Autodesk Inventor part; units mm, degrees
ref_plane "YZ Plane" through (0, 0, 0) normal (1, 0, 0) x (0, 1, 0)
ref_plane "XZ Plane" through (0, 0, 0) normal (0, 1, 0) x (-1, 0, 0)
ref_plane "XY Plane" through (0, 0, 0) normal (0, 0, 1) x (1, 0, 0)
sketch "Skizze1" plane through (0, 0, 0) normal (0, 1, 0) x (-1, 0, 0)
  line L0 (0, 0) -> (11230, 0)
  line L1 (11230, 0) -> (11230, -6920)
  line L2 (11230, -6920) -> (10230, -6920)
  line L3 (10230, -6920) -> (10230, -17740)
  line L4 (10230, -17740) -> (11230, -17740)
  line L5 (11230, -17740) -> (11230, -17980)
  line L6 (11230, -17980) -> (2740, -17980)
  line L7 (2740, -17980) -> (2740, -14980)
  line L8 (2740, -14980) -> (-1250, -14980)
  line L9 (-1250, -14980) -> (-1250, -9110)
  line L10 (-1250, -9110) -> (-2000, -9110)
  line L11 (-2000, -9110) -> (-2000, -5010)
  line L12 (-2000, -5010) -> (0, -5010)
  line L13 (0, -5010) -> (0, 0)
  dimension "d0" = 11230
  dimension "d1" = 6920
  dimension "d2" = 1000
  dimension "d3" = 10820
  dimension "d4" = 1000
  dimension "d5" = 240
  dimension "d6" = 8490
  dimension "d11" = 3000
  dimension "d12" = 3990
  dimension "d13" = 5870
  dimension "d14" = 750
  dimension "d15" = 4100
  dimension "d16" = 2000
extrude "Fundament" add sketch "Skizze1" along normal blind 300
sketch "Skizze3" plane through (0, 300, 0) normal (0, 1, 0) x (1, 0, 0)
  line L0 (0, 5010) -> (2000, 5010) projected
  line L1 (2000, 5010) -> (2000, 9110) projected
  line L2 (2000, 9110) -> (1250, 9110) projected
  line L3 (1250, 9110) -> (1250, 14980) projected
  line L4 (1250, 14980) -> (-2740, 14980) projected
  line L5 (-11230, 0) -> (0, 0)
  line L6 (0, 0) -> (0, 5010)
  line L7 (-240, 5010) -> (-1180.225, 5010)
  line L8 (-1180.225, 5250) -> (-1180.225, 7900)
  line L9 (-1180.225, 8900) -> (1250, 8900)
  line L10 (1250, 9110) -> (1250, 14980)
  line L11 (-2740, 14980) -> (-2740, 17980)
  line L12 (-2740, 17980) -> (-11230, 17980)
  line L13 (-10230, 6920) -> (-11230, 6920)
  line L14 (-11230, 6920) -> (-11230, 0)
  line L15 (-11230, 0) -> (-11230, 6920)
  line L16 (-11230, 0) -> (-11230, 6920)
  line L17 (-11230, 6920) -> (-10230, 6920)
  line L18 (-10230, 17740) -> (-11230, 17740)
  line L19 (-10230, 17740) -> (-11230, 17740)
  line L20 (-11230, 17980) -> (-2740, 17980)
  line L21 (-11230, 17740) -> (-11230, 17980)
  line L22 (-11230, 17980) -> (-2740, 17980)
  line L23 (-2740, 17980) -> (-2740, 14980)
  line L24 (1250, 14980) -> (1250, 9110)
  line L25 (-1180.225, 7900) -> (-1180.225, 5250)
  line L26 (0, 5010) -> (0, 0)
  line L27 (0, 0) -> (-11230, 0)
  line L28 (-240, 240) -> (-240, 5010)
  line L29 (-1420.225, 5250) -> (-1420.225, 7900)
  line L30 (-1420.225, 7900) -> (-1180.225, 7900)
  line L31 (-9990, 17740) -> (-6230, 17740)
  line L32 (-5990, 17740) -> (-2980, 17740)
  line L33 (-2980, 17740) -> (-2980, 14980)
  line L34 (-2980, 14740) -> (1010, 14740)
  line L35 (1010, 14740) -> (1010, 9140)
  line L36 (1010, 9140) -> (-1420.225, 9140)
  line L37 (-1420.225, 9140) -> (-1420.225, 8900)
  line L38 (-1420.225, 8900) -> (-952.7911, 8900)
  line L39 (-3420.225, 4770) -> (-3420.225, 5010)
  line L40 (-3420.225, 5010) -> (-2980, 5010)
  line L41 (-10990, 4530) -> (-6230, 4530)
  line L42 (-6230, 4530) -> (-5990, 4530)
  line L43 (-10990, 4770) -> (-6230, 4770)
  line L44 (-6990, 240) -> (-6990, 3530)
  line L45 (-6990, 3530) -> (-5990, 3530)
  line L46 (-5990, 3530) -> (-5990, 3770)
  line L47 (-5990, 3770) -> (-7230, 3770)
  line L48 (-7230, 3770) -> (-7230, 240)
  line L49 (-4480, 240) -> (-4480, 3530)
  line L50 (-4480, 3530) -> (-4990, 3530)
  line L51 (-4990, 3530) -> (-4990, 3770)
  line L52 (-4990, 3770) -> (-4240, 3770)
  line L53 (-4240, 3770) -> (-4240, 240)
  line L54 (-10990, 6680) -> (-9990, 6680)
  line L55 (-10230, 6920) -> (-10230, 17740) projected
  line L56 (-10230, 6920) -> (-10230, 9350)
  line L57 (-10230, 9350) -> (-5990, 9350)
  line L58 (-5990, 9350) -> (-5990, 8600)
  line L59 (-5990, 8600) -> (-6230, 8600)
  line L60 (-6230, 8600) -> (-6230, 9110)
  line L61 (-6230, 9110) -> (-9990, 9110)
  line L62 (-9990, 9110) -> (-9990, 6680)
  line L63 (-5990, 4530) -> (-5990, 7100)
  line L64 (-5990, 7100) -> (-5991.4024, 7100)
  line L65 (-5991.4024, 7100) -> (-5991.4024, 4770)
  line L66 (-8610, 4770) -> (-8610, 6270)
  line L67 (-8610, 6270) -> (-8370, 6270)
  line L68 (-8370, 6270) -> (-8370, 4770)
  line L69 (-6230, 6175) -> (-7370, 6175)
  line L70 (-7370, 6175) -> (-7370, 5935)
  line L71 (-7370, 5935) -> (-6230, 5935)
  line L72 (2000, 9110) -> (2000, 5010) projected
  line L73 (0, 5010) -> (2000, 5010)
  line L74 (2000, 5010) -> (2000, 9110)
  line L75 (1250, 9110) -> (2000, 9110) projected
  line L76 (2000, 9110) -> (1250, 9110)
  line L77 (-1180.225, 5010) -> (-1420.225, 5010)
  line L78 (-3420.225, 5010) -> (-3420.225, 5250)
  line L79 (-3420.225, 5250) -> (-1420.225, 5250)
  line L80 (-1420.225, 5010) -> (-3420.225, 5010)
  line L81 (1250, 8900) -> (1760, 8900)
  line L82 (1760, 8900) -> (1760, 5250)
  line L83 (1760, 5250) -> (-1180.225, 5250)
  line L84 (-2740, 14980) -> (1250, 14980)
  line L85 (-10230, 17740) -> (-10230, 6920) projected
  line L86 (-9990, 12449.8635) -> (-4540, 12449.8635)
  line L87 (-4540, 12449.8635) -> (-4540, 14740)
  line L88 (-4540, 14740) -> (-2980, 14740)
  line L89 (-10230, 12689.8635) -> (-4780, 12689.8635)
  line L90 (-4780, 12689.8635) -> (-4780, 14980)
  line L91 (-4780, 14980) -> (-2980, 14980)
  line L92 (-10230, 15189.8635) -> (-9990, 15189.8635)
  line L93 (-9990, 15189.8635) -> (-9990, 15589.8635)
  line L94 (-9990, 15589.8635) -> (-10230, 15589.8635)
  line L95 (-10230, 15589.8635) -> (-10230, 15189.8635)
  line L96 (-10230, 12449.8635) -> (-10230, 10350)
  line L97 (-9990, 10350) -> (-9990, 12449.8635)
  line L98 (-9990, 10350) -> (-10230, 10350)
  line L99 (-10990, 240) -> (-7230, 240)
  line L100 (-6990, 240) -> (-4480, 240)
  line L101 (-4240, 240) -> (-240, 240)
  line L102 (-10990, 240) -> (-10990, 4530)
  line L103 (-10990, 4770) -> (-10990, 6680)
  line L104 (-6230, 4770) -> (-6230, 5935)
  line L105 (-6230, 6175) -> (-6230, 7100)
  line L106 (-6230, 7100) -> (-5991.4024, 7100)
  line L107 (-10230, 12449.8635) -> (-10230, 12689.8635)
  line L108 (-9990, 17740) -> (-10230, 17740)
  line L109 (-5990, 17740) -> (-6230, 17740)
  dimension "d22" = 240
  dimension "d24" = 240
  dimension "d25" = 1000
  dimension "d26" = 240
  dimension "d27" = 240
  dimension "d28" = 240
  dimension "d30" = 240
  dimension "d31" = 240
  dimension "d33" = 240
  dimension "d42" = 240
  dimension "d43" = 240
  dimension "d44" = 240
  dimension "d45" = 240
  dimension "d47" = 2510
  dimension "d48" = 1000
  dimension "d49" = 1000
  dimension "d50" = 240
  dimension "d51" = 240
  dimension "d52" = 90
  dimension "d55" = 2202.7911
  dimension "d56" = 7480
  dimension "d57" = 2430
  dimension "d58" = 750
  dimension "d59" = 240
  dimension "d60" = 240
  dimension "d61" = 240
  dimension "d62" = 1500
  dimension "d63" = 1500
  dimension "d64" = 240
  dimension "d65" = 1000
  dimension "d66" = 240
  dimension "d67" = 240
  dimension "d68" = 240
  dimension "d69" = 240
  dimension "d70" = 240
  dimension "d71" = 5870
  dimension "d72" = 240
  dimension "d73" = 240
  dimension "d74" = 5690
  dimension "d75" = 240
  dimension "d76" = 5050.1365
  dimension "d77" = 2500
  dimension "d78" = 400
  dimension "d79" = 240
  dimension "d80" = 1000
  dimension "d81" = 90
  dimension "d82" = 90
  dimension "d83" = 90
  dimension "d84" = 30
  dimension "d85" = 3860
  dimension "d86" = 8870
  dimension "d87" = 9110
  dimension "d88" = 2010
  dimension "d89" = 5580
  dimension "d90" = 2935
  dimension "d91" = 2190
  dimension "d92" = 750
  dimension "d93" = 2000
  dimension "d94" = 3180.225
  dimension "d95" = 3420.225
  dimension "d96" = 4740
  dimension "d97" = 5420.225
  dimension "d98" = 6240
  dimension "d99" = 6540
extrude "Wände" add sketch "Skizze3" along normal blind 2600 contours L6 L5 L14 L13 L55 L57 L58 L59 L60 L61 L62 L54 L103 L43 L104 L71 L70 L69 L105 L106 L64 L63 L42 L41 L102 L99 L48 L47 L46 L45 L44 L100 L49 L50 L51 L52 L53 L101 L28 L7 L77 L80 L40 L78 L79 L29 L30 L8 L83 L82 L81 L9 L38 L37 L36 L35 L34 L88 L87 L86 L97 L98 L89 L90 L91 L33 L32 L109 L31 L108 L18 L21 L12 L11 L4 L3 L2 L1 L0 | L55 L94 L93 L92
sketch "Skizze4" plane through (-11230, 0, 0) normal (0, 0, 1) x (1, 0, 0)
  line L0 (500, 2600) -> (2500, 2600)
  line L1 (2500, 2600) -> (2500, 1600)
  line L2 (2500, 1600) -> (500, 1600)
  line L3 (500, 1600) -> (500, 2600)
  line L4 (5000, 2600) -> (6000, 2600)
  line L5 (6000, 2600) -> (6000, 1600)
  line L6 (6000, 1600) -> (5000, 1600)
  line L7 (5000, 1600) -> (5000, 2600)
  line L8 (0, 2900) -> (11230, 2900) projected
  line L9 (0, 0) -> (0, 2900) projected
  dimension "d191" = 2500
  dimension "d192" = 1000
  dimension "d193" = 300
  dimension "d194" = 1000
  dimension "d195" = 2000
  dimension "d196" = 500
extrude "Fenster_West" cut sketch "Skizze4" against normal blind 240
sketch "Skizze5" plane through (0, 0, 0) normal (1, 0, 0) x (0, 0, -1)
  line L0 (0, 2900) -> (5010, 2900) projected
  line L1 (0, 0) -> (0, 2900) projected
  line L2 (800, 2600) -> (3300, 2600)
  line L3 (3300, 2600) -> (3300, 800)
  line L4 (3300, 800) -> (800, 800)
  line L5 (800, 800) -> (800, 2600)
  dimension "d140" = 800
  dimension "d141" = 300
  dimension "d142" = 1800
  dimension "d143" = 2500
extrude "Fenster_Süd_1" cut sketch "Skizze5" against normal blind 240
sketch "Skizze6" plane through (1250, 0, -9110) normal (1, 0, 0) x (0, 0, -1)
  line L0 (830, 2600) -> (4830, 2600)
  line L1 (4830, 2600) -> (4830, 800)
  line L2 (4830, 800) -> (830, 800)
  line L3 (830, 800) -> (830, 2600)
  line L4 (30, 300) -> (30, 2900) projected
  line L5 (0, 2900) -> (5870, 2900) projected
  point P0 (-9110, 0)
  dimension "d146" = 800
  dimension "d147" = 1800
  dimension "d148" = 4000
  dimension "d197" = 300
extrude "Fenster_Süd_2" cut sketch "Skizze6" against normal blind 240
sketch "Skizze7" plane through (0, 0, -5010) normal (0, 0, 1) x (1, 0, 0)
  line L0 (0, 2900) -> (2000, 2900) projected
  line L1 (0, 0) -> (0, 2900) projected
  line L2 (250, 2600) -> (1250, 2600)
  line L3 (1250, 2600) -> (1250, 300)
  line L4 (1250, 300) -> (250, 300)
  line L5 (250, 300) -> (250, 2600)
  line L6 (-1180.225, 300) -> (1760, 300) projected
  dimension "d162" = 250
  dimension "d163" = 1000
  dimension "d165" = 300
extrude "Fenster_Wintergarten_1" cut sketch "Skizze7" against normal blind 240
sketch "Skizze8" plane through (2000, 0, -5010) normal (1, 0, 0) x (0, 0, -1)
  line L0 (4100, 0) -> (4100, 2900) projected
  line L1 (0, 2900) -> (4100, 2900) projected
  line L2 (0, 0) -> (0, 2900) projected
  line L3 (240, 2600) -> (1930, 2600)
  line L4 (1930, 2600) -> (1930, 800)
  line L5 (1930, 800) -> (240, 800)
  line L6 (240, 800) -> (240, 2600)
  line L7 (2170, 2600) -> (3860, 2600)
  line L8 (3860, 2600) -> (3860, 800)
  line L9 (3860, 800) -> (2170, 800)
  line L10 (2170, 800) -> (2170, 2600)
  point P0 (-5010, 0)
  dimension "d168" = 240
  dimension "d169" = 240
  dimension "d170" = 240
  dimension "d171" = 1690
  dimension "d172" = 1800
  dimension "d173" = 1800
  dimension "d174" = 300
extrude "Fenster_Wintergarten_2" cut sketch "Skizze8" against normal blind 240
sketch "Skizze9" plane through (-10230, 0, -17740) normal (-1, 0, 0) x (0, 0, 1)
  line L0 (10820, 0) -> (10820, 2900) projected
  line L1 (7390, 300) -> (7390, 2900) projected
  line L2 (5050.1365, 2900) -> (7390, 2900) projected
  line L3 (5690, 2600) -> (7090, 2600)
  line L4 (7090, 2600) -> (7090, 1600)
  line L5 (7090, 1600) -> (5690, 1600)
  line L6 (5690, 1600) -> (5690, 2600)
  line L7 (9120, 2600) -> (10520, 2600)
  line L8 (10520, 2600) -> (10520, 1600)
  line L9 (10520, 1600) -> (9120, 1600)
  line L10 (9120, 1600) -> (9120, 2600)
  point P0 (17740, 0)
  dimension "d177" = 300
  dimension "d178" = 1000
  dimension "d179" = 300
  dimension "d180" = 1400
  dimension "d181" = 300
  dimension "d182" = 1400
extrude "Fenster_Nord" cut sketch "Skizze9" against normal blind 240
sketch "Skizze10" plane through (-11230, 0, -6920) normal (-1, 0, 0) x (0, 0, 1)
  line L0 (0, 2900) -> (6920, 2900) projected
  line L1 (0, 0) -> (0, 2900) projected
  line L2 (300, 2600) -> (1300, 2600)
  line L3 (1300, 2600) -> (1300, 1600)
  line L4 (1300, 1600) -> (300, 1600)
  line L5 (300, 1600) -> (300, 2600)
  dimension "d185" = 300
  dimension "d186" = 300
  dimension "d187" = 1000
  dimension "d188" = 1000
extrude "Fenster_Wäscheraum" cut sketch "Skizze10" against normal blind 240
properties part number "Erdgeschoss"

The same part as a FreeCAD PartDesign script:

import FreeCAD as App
import Part
import Sketcher
Q = App.Units.Quantity


def add_polygon(sketch, points):
    """Adds a closed chain of lines whose ends are joined by coincident constraints."""
    first, n = sketch.GeometryCount, len(points)
    for a, b in zip(points, points[1:] + points[:1]):
        sketch.addGeometry(Part.LineSegment(App.Vector(*a, 0), App.Vector(*b, 0)), False)
    for i in range(n):
        sketch.addConstraint(Sketcher.Constraint("Coincident", first + i, 2, first + (i + 1) % n, 1))

doc = App.newDocument("Part")
body = doc.addObject("PartDesign::Body", "Body")

sketch1 = body.newObject("Sketcher::SketchObject", "Sketch")
sketch1.AttachmentSupport = (doc.getObject("XZ_Plane"), [""])
sketch1.MapMode = "FlatFace"
add_polygon(sketch1, [(-11230, 0), (0, 0), (0, -5010), (2000, -5010), (2000, -9110), (1250, -9110), (1250, -14980), (-2740, -14980), (-2740, -17980), (-11230, -17980), (-11230, -17740), (-10230, -17740), (-10230, -6920), (-11230, -6920)])
sketch1.addConstraint(Sketcher.Constraint("Horizontal", 0))
sketch1.addConstraint(Sketcher.Constraint("Vertical", 1))
sketch1.addConstraint(Sketcher.Constraint("Horizontal", 2))
sketch1.addConstraint(Sketcher.Constraint("Vertical", 3))
sketch1.addConstraint(Sketcher.Constraint("Horizontal", 4))
sketch1.addConstraint(Sketcher.Constraint("Vertical", 5))
sketch1.addConstraint(Sketcher.Constraint("Horizontal", 6))
sketch1.addConstraint(Sketcher.Constraint("Vertical", 7))
sketch1.addConstraint(Sketcher.Constraint("Horizontal", 8))
sketch1.addConstraint(Sketcher.Constraint("Vertical", 9))
sketch1.addConstraint(Sketcher.Constraint("Horizontal", 10))
sketch1.addConstraint(Sketcher.Constraint("Vertical", 11))
sketch1.addConstraint(Sketcher.Constraint("Horizontal", 12))
sketch1.addConstraint(Sketcher.Constraint("Vertical", 13))
sketch1.addConstraint(Sketcher.Constraint("Coincident", 0, 2, -1, 1))
sketch1.addConstraint(Sketcher.Constraint("Vertical", 9, 2, 12, 2))
sketch1.addConstraint(Sketcher.Constraint("DistanceX", 0, 1, 0, 2, Q("11230 mm")))
sketch1.addConstraint(Sketcher.Constraint("DistanceX", 2, 1, 2, 2, Q("2000 mm")))
sketch1.addConstraint(Sketcher.Constraint("DistanceX", 4, 2, 4, 1, Q("750 mm")))
sketch1.addConstraint(Sketcher.Constraint("DistanceX", 6, 2, 6, 1, Q("3990 mm")))
sketch1.addConstraint(Sketcher.Constraint("DistanceX", 10, 1, 10, 2, Q("1000 mm")))
sketch1.addConstraint(Sketcher.Constraint("DistanceY", 3, 2, 3, 1, Q("4100 mm")))
sketch1.addConstraint(Sketcher.Constraint("DistanceY", 5, 2, 5, 1, Q("5870 mm")))
sketch1.addConstraint(Sketcher.Constraint("DistanceY", 7, 2, 7, 1, Q("3000 mm")))
sketch1.addConstraint(Sketcher.Constraint("DistanceY", 9, 1, 9, 2, Q("240 mm")))
sketch1.addConstraint(Sketcher.Constraint("DistanceY", 11, 1, 11, 2, Q("10820 mm")))
sketch1.addConstraint(Sketcher.Constraint("DistanceY", 13, 1, 13, 2, Q("6920 mm")))
pad1 = body.newObject("PartDesign::Pad", "Pad")
pad1.Profile = sketch1
pad1.Length = 300
pad1.Reversed = True

sketch2 = body.newObject("Sketcher::SketchObject", "Sketch001")
sketch2.AttachmentSupport = (doc.getObject("XZ_Plane"), [""])
sketch2.MapMode = "FlatFace"
sketch2.AttachmentOffset = App.Placement(App.Vector(0, 0, -300), App.Rotation())
add_polygon(sketch2, [(0, 0), (0, -5010), (2000, -5010), (2000, -9110), (1250, -9110), (1250, -14980), (-2740, -14980), (-2740, -17980), (-11230, -17980), (-11230, -17740), (-2980, -17740), (-2980, -14980), (-4780, -14980), (-4780, -12690), (-10230, -12690), (-10230, -10350), (-9990, -10350), (-9990, -12450), (-4540, -12450), (-4540, -14740), (1010, -14740), (1010, -9140), (-1420, -9140), (-1420, -8900), (1760, -8900), (1760, -5250), (-1180, -5250), (-1180, -7900), (-1420, -7900), (-1420, -5250), (-3420, -5250), (-3420, -5010), (-240, -5010), (-240, -240), (-4240, -240), (-4240, -3770), (-4990, -3770), (-4990, -3530), (-4480, -3530), (-4480, -240), (-6990, -240), (-6990, -3530), (-5990, -3530), (-5990, -3770), (-7230, -3770), (-7230, -240), (-10990, -240), (-10990, -4530), (-5990, -4530), (-5990, -7100), (-6230, -7100), (-6230, -6175), (-7370, -6175), (-7370, -5935), (-6230, -5935), (-6230, -4770), (-10990, -4770), (-10990, -6680), (-9990, -6680), (-9990, -9110), (-6230, -9110), (-6230, -8600), (-5990, -8600), (-5990, -9350), (-10230, -9350), (-10230, -6920), (-11230, -6920), (-11230, 0)])
add_polygon(sketch2, [(-10230, -15590), (-10230, -15190), (-9990, -15190), (-9990, -15590)])
sketch2.addConstraint(Sketcher.Constraint("Vertical", 0))
sketch2.addConstraint(Sketcher.Constraint("Horizontal", 1))
sketch2.addConstraint(Sketcher.Constraint("Vertical", 2))
sketch2.addConstraint(Sketcher.Constraint("Horizontal", 3))
sketch2.addConstraint(Sketcher.Constraint("Vertical", 4))
sketch2.addConstraint(Sketcher.Constraint("Horizontal", 5))
sketch2.addConstraint(Sketcher.Constraint("Vertical", 6))
sketch2.addConstraint(Sketcher.Constraint("Horizontal", 7))
sketch2.addConstraint(Sketcher.Constraint("Vertical", 8))
sketch2.addConstraint(Sketcher.Constraint("Horizontal", 9))
sketch2.addConstraint(Sketcher.Constraint("Vertical", 10))
sketch2.addConstraint(Sketcher.Constraint("Horizontal", 11))
sketch2.addConstraint(Sketcher.Constraint("Vertical", 12))
sketch2.addConstraint(Sketcher.Constraint("Horizontal", 13))
sketch2.addConstraint(Sketcher.Constraint("Vertical", 14))
sketch2.addConstraint(Sketcher.Constraint("Horizontal", 15))
sketch2.addConstraint(Sketcher.Constraint("Vertical", 16))
sketch2.addConstraint(Sketcher.Constraint("Horizontal", 17))
sketch2.addConstraint(Sketcher.Constraint("Vertical", 18))
sketch2.addConstraint(Sketcher.Constraint("Horizontal", 19))
sketch2.addConstraint(Sketcher.Constraint("Vertical", 20))
sketch2.addConstraint(Sketcher.Constraint("Horizontal", 21))
sketch2.addConstraint(Sketcher.Constraint("Vertical", 22))
sketch2.addConstraint(Sketcher.Constraint("Horizontal", 23))
sketch2.addConstraint(Sketcher.Constraint("Vertical", 24))
sketch2.addConstraint(Sketcher.Constraint("Horizontal", 25))
sketch2.addConstraint(Sketcher.Constraint("Vertical", 26))
sketch2.addConstraint(Sketcher.Constraint("Horizontal", 27))
sketch2.addConstraint(Sketcher.Constraint("Vertical", 28))
sketch2.addConstraint(Sketcher.Constraint("Horizontal", 29))
sketch2.addConstraint(Sketcher.Constraint("Vertical", 30))
sketch2.addConstraint(Sketcher.Constraint("Horizontal", 31))
sketch2.addConstraint(Sketcher.Constraint("Vertical", 32))
sketch2.addConstraint(Sketcher.Constraint("Horizontal", 33))
sketch2.addConstraint(Sketcher.Constraint("Vertical", 34))
sketch2.addConstraint(Sketcher.Constraint("Horizontal", 35))
sketch2.addConstraint(Sketcher.Constraint("Vertical", 36))
sketch2.addConstraint(Sketcher.Constraint("Horizontal", 37))
sketch2.addConstraint(Sketcher.Constraint("Vertical", 38))
sketch2.addConstraint(Sketcher.Constraint("Horizontal", 39))
sketch2.addConstraint(Sketcher.Constraint("Vertical", 40))
sketch2.addConstraint(Sketcher.Constraint("Horizontal", 41))
sketch2.addConstraint(Sketcher.Constraint("Vertical", 42))
sketch2.addConstraint(Sketcher.Constraint("Horizontal", 43))
sketch2.addConstraint(Sketcher.Constraint("Vertical", 44))
sketch2.addConstraint(Sketcher.Constraint("Horizontal", 45))
sketch2.addConstraint(Sketcher.Constraint("Vertical", 46))
sketch2.addConstraint(Sketcher.Constraint("Horizontal", 47))
sketch2.addConstraint(Sketcher.Constraint("Vertical", 48))
sketch2.addConstraint(Sketcher.Constraint("Horizontal", 49))
sketch2.addConstraint(Sketcher.Constraint("Vertical", 50))
sketch2.addConstraint(Sketcher.Constraint("Horizontal", 51))
sketch2.addConstraint(Sketcher.Constraint("Vertical", 52))
sketch2.addConstraint(Sketcher.Constraint("Horizontal", 53))
sketch2.addConstraint(Sketcher.Constraint("Vertical", 54))
sketch2.addConstraint(Sketcher.Constraint("Horizontal", 55))
sketch2.addConstraint(Sketcher.Constraint("Vertical", 56))
sketch2.addConstraint(Sketcher.Constraint("Horizontal", 57))
sketch2.addConstraint(Sketcher.Constraint("Vertical", 58))
sketch2.addConstraint(Sketcher.Constraint("Horizontal", 59))
sketch2.addConstraint(Sketcher.Constraint("Vertical", 60))
sketch2.addConstraint(Sketcher.Constraint("Horizontal", 61))
sketch2.addConstraint(Sketcher.Constraint("Vertical", 62))
sketch2.addConstraint(Sketcher.Constraint("Horizontal", 63))
sketch2.addConstraint(Sketcher.Constraint("Vertical", 64))
sketch2.addConstraint(Sketcher.Constraint("Horizontal", 65))
sketch2.addConstraint(Sketcher.Constraint("Vertical", 66))
sketch2.addConstraint(Sketcher.Constraint("Horizontal", 67))
sketch2.addConstraint(Sketcher.Constraint("Vertical", 68))
sketch2.addConstraint(Sketcher.Constraint("Horizontal", 69))
sketch2.addConstraint(Sketcher.Constraint("Vertical", 70))
sketch2.addConstraint(Sketcher.Constraint("Horizontal", 71))
sketch2.addConstraint(Sketcher.Constraint("Coincident", 67, 2, -1, 1))
sketch2.addConstraint(Sketcher.Constraint("Horizontal", 5, 2, 10, 2))
sketch2.addConstraint(Sketcher.Constraint("Horizontal", 25, 2, 28, 2))
sketch2.addConstraint(Sketcher.Constraint("Horizontal", 1, 2, 30, 2))
sketch2.addConstraint(Sketcher.Constraint("Horizontal", 33, 2, 38, 2))
sketch2.addConstraint(Sketcher.Constraint("Horizontal", 37, 2, 40, 2))
sketch2.addConstraint(Sketcher.Constraint("Horizontal", 35, 2, 42, 2))
sketch2.addConstraint(Sketcher.Constraint("Horizontal", 39, 2, 44, 2))
sketch2.addConstraint(Sketcher.Constraint("Horizontal", 3, 2, 58, 2))
sketch2.addConstraint(Sketcher.Constraint("Vertical", 22, 2, 27, 2))
sketch2.addConstraint(Sketcher.Constraint("Vertical", 42, 2, 47, 2))
sketch2.addConstraint(Sketcher.Constraint("Vertical", 50, 2, 53, 2))
sketch2.addConstraint(Sketcher.Constraint("Vertical", 46, 2, 55, 2))
sketch2.addConstraint(Sketcher.Constraint("Vertical", 16, 2, 57, 2))
sketch2.addConstraint(Sketcher.Constraint("Vertical", 54, 2, 59, 2))
sketch2.addConstraint(Sketcher.Constraint("Vertical", 48, 2, 61, 2))
sketch2.addConstraint(Sketcher.Constraint("Vertical", 14, 2, 63, 2))
sketch2.addConstraint(Sketcher.Constraint("Vertical", 8, 2, 65, 2))
sketch2.addConstraint(Sketcher.Constraint("Vertical", 64, 2, 68, 2))
sketch2.addConstraint(Sketcher.Constraint("Vertical", 58, 2, 69, 2))
sketch2.addConstraint(Sketcher.Constraint("Equal", 13, 17))
sketch2.addConstraint(Sketcher.Constraint("Equal", 15, 27))
sketch2.addConstraint(Sketcher.Constraint("Equal", 1, 29))
sketch2.addConstraint(Sketcher.Constraint("Equal", 23, 31))
sketch2.addConstraint(Sketcher.Constraint("Equal", 3, 35))
sketch2.addConstraint(Sketcher.Constraint("Equal", 27, 49))
sketch2.addConstraint(Sketcher.Constraint("Equal", 41, 57))
sketch2.addConstraint(Sketcher.Constraint("Equal", 45, 59))
sketch2.addConstraint(Sketcher.Constraint("Equal", 57, 65))
sketch2.addConstraint(Sketcher.Constraint("Equal", 71, 8))
sketch2.addConstraint(Sketcher.Constraint("Equal", 12, 18))
sketch2.addConstraint(Sketcher.Constraint("Equal", 8, 22))
sketch2.addConstraint(Sketcher.Constraint("Equal", 22, 30))
sketch2.addConstraint(Sketcher.Constraint("Equal", 30, 36))
sketch2.addConstraint(Sketcher.Constraint("Equal", 42, 52))
sketch2.addConstraint(Sketcher.Constraint("Equal", 37, 60))
sketch2.addConstraint(Sketcher.Constraint("Equal", 35, 62))
sketch2.addConstraint(Sketcher.Constraint("Equal", 58, 64))
sketch2.addConstraint(Sketcher.Constraint("DistanceX", 1, 1, 1, 2, Q("2000 mm")))
sketch2.addConstraint(Sketcher.Constraint("DistanceX", 3, 2, 3, 1, Q("750 mm")))
sketch2.addConstraint(Sketcher.Constraint("DistanceX", 15, 1, 15, 2, Q("240 mm")))
sketch2.addConstraint(Sketcher.Constraint("DistanceX", 39, 2, 39, 1, Q("2510 mm")))
sketch2.addConstraint(Sketcher.Constraint("DistanceX", 41, 1, 41, 2, Q("1000 mm")))
sketch2.addConstraint(Sketcher.Constraint("DistanceY", 4, 2, 4, 1, Q("5870 mm")))
sketch2.addConstraint(Sketcher.Constraint("DistanceY", 58, 2, 58, 1, Q("2430 mm")))
sketch2.addConstraint(Sketcher.Constraint("DistanceY", 68, 1, 68, 2, Q("400 mm")))
sketch2.addConstraint(Sketcher.Constraint("DistanceY", 2, 2, -1, 1, Q("9110 mm")))
sketch2.addConstraint(Sketcher.Constraint("DistanceX", 31, 2, -1, 1, Q("240 mm")))
sketch2.addConstraint(Sketcher.Constraint("DistanceY", 32, 2, -1, 1, Q("240 mm")))
sketch2.addConstraint(Sketcher.Constraint("DistanceX", 5, 2, 5, 1, Q("3990 mm")))
sketch2.addConstraint(Sketcher.Constraint("DistanceX", 7, 2, 7, 1, Q("8490 mm")))
sketch2.addConstraint(Sketcher.Constraint("DistanceX", 9, 1, 9, 2, Q("8250 mm")))
sketch2.addConstraint(Sketcher.Constraint("DistanceX", 11, 2, 11, 1, Q("1800 mm")))
sketch2.addConstraint(Sketcher.Constraint("DistanceX", 19, 1, 19, 2, Q("5550 mm")))
sketch2.addConstraint(Sketcher.Constraint("DistanceX", 23, 1, 23, 2, Q("3180.225 mm")))
sketch2.addConstraint(Sketcher.Constraint("DistanceX", 33, 2, 33, 1, Q("4000 mm")))
sketch2.addConstraint(Sketcher.Constraint("DistanceX", 37, 1, 37, 2, Q("510 mm")))
sketch2.addConstraint(Sketcher.Constraint("DistanceX", 51, 2, 51, 1, Q("1140 mm")))
sketch2.addConstraint(Sketcher.Constraint("DistanceY", 0, 2, 0, 1, Q("5010 mm")))
sketch2.addConstraint(Sketcher.Constraint("DistanceY", 6, 2, 6, 1, Q("3000 mm")))
sketch2.addConstraint(Sketcher.Constraint("DistanceY", 20, 1, 20, 2, Q("5600 mm")))
sketch2.addConstraint(Sketcher.Constraint("DistanceY", 24, 1, 24, 2, Q("3650 mm")))
sketch2.addConstraint(Sketcher.Constraint("DistanceY", 26, 2, 26, 1, Q("2650 mm")))
sketch2.addConstraint(Sketcher.Constraint("DistanceY", 34, 2, 34, 1, Q("3530 mm")))
sketch2.addConstraint(Sketcher.Constraint("DistanceY", 46, 2, 46, 1, Q("4290 mm")))
sketch2.addConstraint(Sketcher.Constraint("DistanceY", 48, 2, 48, 1, Q("2570 mm")))
sketch2.addConstraint(Sketcher.Constraint("DistanceY", 50, 1, 50, 2, Q("925 mm")))
sketch2.addConstraint(Sketcher.Constraint("DistanceY", 54, 1, 54, 2, Q("1165 mm")))
sketch2.addConstraint(Sketcher.Constraint("DistanceY", 14, 2, -1, 1, Q("10350 mm")))
sketch2.addConstraint(Sketcher.Constraint("DistanceY", 12, 1, 12, 2, Q("2290.1365 mm")))
sketch2.addConstraint(Sketcher.Constraint("DistanceY", 68, 2, -1, 1, Q("15189.8635 mm")))
pad2 = body.newObject("PartDesign::Pad", "Pad001")
pad2.Profile = sketch2
pad2.Length = 2600
pad2.Reversed = True

sketch3 = body.newObject("Sketcher::SketchObject", "Sketch002")
sketch3.AttachmentSupport = (doc.getObject("XY_Plane"), [""])
sketch3.MapMode = "FlatFace"
add_polygon(sketch3, [(-8730, 2600), (-10730, 2600), (-10730, 1600), (-8730, 1600)])
add_polygon(sketch3, [(-5230, 2600), (-6230, 2600), (-6230, 1600), (-5230, 1600)])
sketch3.addConstraint(Sketcher.Constraint("Horizontal", 0))
sketch3.addConstraint(Sketcher.Constraint("Vertical", 1))
sketch3.addConstraint(Sketcher.Constraint("Horizontal", 2))
sketch3.addConstraint(Sketcher.Constraint("Vertical", 3))
sketch3.addConstraint(Sketcher.Constraint("Horizontal", 4))
sketch3.addConstraint(Sketcher.Constraint("Vertical", 5))
sketch3.addConstraint(Sketcher.Constraint("Horizontal", 6))
sketch3.addConstraint(Sketcher.Constraint("Vertical", 7))
sketch3.addConstraint(Sketcher.Constraint("Horizontal", 3, 2, 4, 2))
sketch3.addConstraint(Sketcher.Constraint("Horizontal", 2, 2, 5, 2))
sketch3.addConstraint(Sketcher.Constraint("Equal", 6, 1))
sketch3.addConstraint(Sketcher.Constraint("DistanceX", 0, 2, 0, 1, Q("2000 mm")))
sketch3.addConstraint(Sketcher.Constraint("DistanceX", 4, 2, 4, 1, Q("1000 mm")))
sketch3.addConstraint(Sketcher.Constraint("DistanceX", 3, 2, 4, 2, Q("2500 mm")))
sketch3.addConstraint(Sketcher.Constraint("DistanceX", 0, 2, -1, 1, Q("10730 mm")))
sketch3.addConstraint(Sketcher.Constraint("DistanceY", -1, 1, 0, 2, Q("2600 mm")))
pocket1 = body.newObject("PartDesign::Pocket", "Pocket")
pocket1.Profile = sketch3
pocket1.Length = 240

sketch4 = body.newObject("Sketcher::SketchObject", "Sketch003")
sketch4.AttachmentSupport = (doc.getObject("YZ_Plane"), [""])
sketch4.MapMode = "FlatFace"
add_polygon(sketch4, [(2600, -3300), (2600, -800), (800, -800), (800, -3300)])
sketch4.addConstraint(Sketcher.Constraint("Vertical", 0))
sketch4.addConstraint(Sketcher.Constraint("Horizontal", 1))
sketch4.addConstraint(Sketcher.Constraint("Vertical", 2))
sketch4.addConstraint(Sketcher.Constraint("Horizontal", 3))
sketch4.addConstraint(Sketcher.Constraint("DistanceX", 1, 2, 1, 1, Q("1800 mm")))
sketch4.addConstraint(Sketcher.Constraint("DistanceY", 0, 1, 0, 2, Q("2500 mm")))
sketch4.addConstraint(Sketcher.Constraint("DistanceY", 0, 2, -1, 1, Q("800 mm")))
sketch4.addConstraint(Sketcher.Constraint("DistanceX", -1, 1, 1, 2, Q("800 mm")))
pocket2 = body.newObject("PartDesign::Pocket", "Pocket001")
pocket2.Profile = sketch4
pocket2.Length = 240

sketch5 = body.newObject("Sketcher::SketchObject", "Sketch004")
sketch5.AttachmentSupport = (doc.getObject("YZ_Plane"), [""])
sketch5.MapMode = "FlatFace"
sketch5.AttachmentOffset = App.Placement(App.Vector(0, 0, 1250), App.Rotation())
add_polygon(sketch5, [(2600, -13940), (2600, -9940), (800, -9940), (800, -13940)])
sketch5.addConstraint(Sketcher.Constraint("Vertical", 0))
sketch5.addConstraint(Sketcher.Constraint("Horizontal", 1))
sketch5.addConstraint(Sketcher.Constraint("Vertical", 2))
sketch5.addConstraint(Sketcher.Constraint("Horizontal", 3))
sketch5.addConstraint(Sketcher.Constraint("DistanceX", 1, 2, 1, 1, Q("1800 mm")))
sketch5.addConstraint(Sketcher.Constraint("DistanceY", 0, 1, 0, 2, Q("4000 mm")))
sketch5.addConstraint(Sketcher.Constraint("DistanceX", -1, 1, 1, 2, Q("800 mm")))
sketch5.addConstraint(Sketcher.Constraint("DistanceY", 0, 2, -1, 1, Q("9940 mm")))
pocket3 = body.newObject("PartDesign::Pocket", "Pocket002")
pocket3.Profile = sketch5
pocket3.Length = 240

sketch6 = body.newObject("Sketcher::SketchObject", "Sketch005")
sketch6.AttachmentSupport = (doc.getObject("XY_Plane"), [""])
sketch6.MapMode = "FlatFace"
sketch6.AttachmentOffset = App.Placement(App.Vector(0, 0, -5010), App.Rotation())
add_polygon(sketch6, [(1250, 2600), (250, 2600), (250, 300), (1250, 300)])
sketch6.addConstraint(Sketcher.Constraint("Horizontal", 0))
sketch6.addConstraint(Sketcher.Constraint("Vertical", 1))
sketch6.addConstraint(Sketcher.Constraint("Horizontal", 2))
sketch6.addConstraint(Sketcher.Constraint("Vertical", 3))
sketch6.addConstraint(Sketcher.Constraint("DistanceX", 0, 2, 0, 1, Q("1000 mm")))
sketch6.addConstraint(Sketcher.Constraint("DistanceX", -1, 1, 0, 2, Q("250 mm")))
sketch6.addConstraint(Sketcher.Constraint("DistanceY", -1, 1, 1, 2, Q("300 mm")))
sketch6.addConstraint(Sketcher.Constraint("DistanceY", 1, 2, 1, 1, Q("2300 mm")))
pocket4 = body.newObject("PartDesign::Pocket", "Pocket003")
pocket4.Profile = sketch6
pocket4.Length = 240

sketch7 = body.newObject("Sketcher::SketchObject", "Sketch006")
sketch7.AttachmentSupport = (doc.getObject("YZ_Plane"), [""])
sketch7.MapMode = "FlatFace"
sketch7.AttachmentOffset = App.Placement(App.Vector(0, 0, 2000), App.Rotation())
add_polygon(sketch7, [(2600, -6940), (2600, -5250), (800, -5250), (800, -6940)])
add_polygon(sketch7, [(2600, -8870), (2600, -7180), (800, -7180), (800, -8870)])
sketch7.addConstraint(Sketcher.Constraint("Vertical", 0))
sketch7.addConstraint(Sketcher.Constraint("Horizontal", 1))
sketch7.addConstraint(Sketcher.Constraint("Vertical", 2))
sketch7.addConstraint(Sketcher.Constraint("Horizontal", 3))
sketch7.addConstraint(Sketcher.Constraint("Vertical", 4))
sketch7.addConstraint(Sketcher.Constraint("Horizontal", 5))
sketch7.addConstraint(Sketcher.Constraint("Vertical", 6))
sketch7.addConstraint(Sketcher.Constraint("Horizontal", 7))
sketch7.addConstraint(Sketcher.Constraint("Vertical", 3, 2, 4, 2))
sketch7.addConstraint(Sketcher.Constraint("Vertical", 2, 2, 5, 2))
sketch7.addConstraint(Sketcher.Constraint("Equal", 2, 4))
sketch7.addConstraint(Sketcher.Constraint("DistanceX", 1, 2, 1, 1, Q("1800 mm")))
sketch7.addConstraint(Sketcher.Constraint("DistanceY", 0, 1, 0, 2, Q("1690 mm")))
sketch7.addConstraint(Sketcher.Constraint("DistanceY", 4, 2, 3, 2, Q("240 mm")))
sketch7.addConstraint(Sketcher.Constraint("DistanceX", -1, 1, 0, 2, Q("2600 mm")))
sketch7.addConstraint(Sketcher.Constraint("DistanceY", 0, 2, -1, 1, Q("5250 mm")))
pocket5 = body.newObject("PartDesign::Pocket", "Pocket004")
pocket5.Profile = sketch7
pocket5.Length = 240

sketch8 = body.newObject("Sketcher::SketchObject", "Sketch007")
sketch8.AttachmentSupport = (doc.getObject("YZ_Plane"), [""])
sketch8.MapMode = "FlatFace"
sketch8.AttachmentOffset = App.Placement(App.Vector(0, 0, -10230), App.Rotation())
add_polygon(sketch8, [(2600, -10650), (2600, -12050), (1600, -12050), (1600, -10650)])
add_polygon(sketch8, [(2600, -7220), (2600, -8620), (1600, -8620), (1600, -7220)])
sketch8.addConstraint(Sketcher.Constraint("Vertical", 0))
sketch8.addConstraint(Sketcher.Constraint("Horizontal", 1))
sketch8.addConstraint(Sketcher.Constraint("Vertical", 2))
sketch8.addConstraint(Sketcher.Constraint("Horizontal", 3))
sketch8.addConstraint(Sketcher.Constraint("Vertical", 4))
sketch8.addConstraint(Sketcher.Constraint("Horizontal", 5))
sketch8.addConstraint(Sketcher.Constraint("Vertical", 6))
sketch8.addConstraint(Sketcher.Constraint("Horizontal", 7))
sketch8.addConstraint(Sketcher.Constraint("Vertical", 3, 2, 4, 2))
sketch8.addConstraint(Sketcher.Constraint("Vertical", 2, 2, 5, 2))
sketch8.addConstraint(Sketcher.Constraint("Equal", 2, 4))
sketch8.addConstraint(Sketcher.Constraint("DistanceX", 1, 2, 1, 1, Q("1000 mm")))
sketch8.addConstraint(Sketcher.Constraint("DistanceY", 0, 2, 0, 1, Q("1400 mm")))
sketch8.addConstraint(Sketcher.Constraint("DistanceX", -1, 1, 0, 2, Q("2600 mm")))
sketch8.addConstraint(Sketcher.Constraint("DistanceY", 0, 2, -1, 1, Q("12050 mm")))
sketch8.addConstraint(Sketcher.Constraint("DistanceY", 4, 2, -1, 1, Q("8620 mm")))
pocket6 = body.newObject("PartDesign::Pocket", "Pocket005")
pocket6.Profile = sketch8
pocket6.Length = 240
pocket6.Reversed = True

sketch9 = body.newObject("Sketcher::SketchObject", "Sketch008")
sketch9.AttachmentSupport = (doc.getObject("YZ_Plane"), [""])
sketch9.MapMode = "FlatFace"
sketch9.AttachmentOffset = App.Placement(App.Vector(0, 0, -11230), App.Rotation())
add_polygon(sketch9, [(2600, -5620), (2600, -6620), (1600, -6620), (1600, -5620)])
sketch9.addConstraint(Sketcher.Constraint("Vertical", 0))
sketch9.addConstraint(Sketcher.Constraint("Horizontal", 1))
sketch9.addConstraint(Sketcher.Constraint("Vertical", 2))
sketch9.addConstraint(Sketcher.Constraint("Horizontal", 3))
sketch9.addConstraint(Sketcher.Constraint("Equal", 3, 0))
sketch9.addConstraint(Sketcher.Constraint("DistanceX", 1, 2, 1, 1, Q("1000 mm")))
sketch9.addConstraint(Sketcher.Constraint("DistanceX", -1, 1, 0, 2, Q("2600 mm")))
sketch9.addConstraint(Sketcher.Constraint("DistanceY", 0, 2, -1, 1, Q("6620 mm")))
pocket7 = body.newObject("PartDesign::Pocket", "Pocket006")
pocket7.Profile = sketch9
pocket7.Length = 240
pocket7.Reversed = True

doc.recompute()
